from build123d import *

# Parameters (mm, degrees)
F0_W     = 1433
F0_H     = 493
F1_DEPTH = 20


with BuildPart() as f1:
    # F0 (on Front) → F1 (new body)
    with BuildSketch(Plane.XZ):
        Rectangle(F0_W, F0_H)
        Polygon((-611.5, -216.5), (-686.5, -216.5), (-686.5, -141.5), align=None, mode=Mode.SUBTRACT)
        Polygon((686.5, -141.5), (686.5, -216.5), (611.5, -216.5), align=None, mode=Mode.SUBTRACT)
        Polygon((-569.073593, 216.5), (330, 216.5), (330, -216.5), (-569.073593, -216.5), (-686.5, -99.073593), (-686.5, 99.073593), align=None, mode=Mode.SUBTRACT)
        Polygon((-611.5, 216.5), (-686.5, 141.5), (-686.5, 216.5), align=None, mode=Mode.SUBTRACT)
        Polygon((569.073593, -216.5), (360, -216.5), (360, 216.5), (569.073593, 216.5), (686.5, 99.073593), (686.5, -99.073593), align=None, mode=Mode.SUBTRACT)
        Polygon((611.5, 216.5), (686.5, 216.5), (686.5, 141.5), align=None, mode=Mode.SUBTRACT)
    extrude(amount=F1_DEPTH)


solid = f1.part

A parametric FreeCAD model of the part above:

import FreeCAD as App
import Part
import Sketcher
from FreeCAD import Vector


def add_polygon(sketch, points):
    """Adds a closed chain of lines whose ends are joined by coincident constraints."""
    first, n = sketch.GeometryCount, len(points)
    for a, b in zip(points, points[1:] + points[:1]):
        sketch.addGeometry(Part.LineSegment(App.Vector(*a, 0), App.Vector(*b, 0)), False)
    for i in range(n):
        sketch.addConstraint(Sketcher.Constraint("Coincident", first + i, 2, first + (i + 1) % n, 1))

doc = App.newDocument("Part")
body = doc.addObject("PartDesign::Body", "Body")

sketch1 = body.newObject("Sketcher::SketchObject", "Sketch")
sketch1.AttachmentSupport = (doc.getObject("XZ_Plane"), [""])
sketch1.MapMode = "FlatFace"
add_polygon(sketch1, [(-716.5, 246.5), (-716.5, -246.5), (716.5, -246.5), (716.5, 246.5)])
add_polygon(sketch1, [(-686.5, -141.5), (-611.5, -216.5), (-686.5, -216.5)])
add_polygon(sketch1, [(611.5, -216.5), (686.5, -141.5), (686.5, -216.5)])
add_polygon(sketch1, [(-686.5, 99.073593), (-569.073593, 216.5), (330, 216.5), (330, -216.5), (-569.073593, -216.5), (-686.5, -99.073593)])
add_polygon(sketch1, [(-686.5, 216.5), (-611.5, 216.5), (-686.5, 141.5)])
add_polygon(sketch1, [(686.5, -99.073593), (569.073593, -216.5), (360, -216.5), (360, 216.5), (569.073593, 216.5), (686.5, 99.073593)])
add_polygon(sketch1, [(686.5, 141.5), (611.5, 216.5), (686.5, 216.5)])
sketch1.addConstraint([
    Sketcher.Constraint("Vertical", 0),
    Sketcher.Constraint("Horizontal", 1),
    Sketcher.Constraint("Vertical", 2),
    Sketcher.Constraint("Horizontal", 3),
    Sketcher.Constraint("Horizontal", 5),
    Sketcher.Constraint("Vertical", 6),
    Sketcher.Constraint("Vertical", 8),
    Sketcher.Constraint("Horizontal", 9),
    Sketcher.Constraint("Horizontal", 11),
    Sketcher.Constraint("Vertical", 12),
    Sketcher.Constraint("Horizontal", 13),
    Sketcher.Constraint("Vertical", 15),
    Sketcher.Constraint("Horizontal", 16),
    Sketcher.Constraint("Vertical", 18),
    Sketcher.Constraint("Horizontal", 20),
    Sketcher.Constraint("Vertical", 21),
    Sketcher.Constraint("Horizontal", 22),
    Sketcher.Constraint("Vertical", 24),
    Sketcher.Constraint("Horizontal", 26),
    Sketcher.Constraint("Vertical", 27),
    Sketcher.Constraint("Symmetric", 0, 2, 2, 2, -1, 1),
    Sketcher.Constraint("Symmetric", 9, 2, 16, 2, -1, 1),
    Sketcher.Constraint("Symmetric", 7, 2, 17, 2, -1, 1),
    Sketcher.Constraint("Symmetric", 10, 2, 19, 2, -1, 1),
    Sketcher.Constraint("Symmetric", 13, 2, 22, 2, -1, 1),
    Sketcher.Constraint("Symmetric", 14, 2, 23, 2, -1, 1),
    Sketcher.Constraint("Symmetric", 4, 2, 25, 2, -1, 1),
    Sketcher.Constraint("Symmetric", 6, 2, 27, 2, -1, 1),
    Sketcher.Constraint("Symmetric", 6, 2, 7, 2, -2),
    Sketcher.Constraint("Symmetric", 4, 2, 9, 2, -2),
    Sketcher.Constraint("Symmetric", 13, 2, 19, 2, -2),
    Sketcher.Constraint("Perpendicular", 4, 7),
    Sketcher.Constraint("Parallel", 7, 10),
    Sketcher.Constraint("Perpendicular", 10, 14),
    Sketcher.Constraint("Parallel", 17, 19),
    Sketcher.Constraint("Horizontal", 9, 2, 12, 2),
    Sketcher.Constraint("Vertical", 6, 2, 14, 2),
    Sketcher.Constraint("DistanceX", 1, 1, 1, 2, 1433.0),
    Sketcher.Constraint("DistanceX", 5, 2, 5, 1, 75.0),
    Sketcher.Constraint("DistanceY", 0, 2, 0, 1, 493.0),
    Sketcher.Constraint("DistanceY", 12, 2, 12, 1, 433.0),
    Sketcher.Constraint("DistanceX", -1, 1, 11, 2, 330.0),
    Sketcher.Constraint("DistanceX", -1, 1, 20, 2, 360.0),
    Sketcher.Constraint("DistanceX", 0, 2, 4, 2, 105.0),
    Sketcher.Constraint("DistanceX", 11, 1, 11, 2, 899.073593),
])
pad1 = body.newObject("PartDesign::Pad", "Pad")
pad1.Profile = sketch1
pad1.Length = 20

doc.recompute()
